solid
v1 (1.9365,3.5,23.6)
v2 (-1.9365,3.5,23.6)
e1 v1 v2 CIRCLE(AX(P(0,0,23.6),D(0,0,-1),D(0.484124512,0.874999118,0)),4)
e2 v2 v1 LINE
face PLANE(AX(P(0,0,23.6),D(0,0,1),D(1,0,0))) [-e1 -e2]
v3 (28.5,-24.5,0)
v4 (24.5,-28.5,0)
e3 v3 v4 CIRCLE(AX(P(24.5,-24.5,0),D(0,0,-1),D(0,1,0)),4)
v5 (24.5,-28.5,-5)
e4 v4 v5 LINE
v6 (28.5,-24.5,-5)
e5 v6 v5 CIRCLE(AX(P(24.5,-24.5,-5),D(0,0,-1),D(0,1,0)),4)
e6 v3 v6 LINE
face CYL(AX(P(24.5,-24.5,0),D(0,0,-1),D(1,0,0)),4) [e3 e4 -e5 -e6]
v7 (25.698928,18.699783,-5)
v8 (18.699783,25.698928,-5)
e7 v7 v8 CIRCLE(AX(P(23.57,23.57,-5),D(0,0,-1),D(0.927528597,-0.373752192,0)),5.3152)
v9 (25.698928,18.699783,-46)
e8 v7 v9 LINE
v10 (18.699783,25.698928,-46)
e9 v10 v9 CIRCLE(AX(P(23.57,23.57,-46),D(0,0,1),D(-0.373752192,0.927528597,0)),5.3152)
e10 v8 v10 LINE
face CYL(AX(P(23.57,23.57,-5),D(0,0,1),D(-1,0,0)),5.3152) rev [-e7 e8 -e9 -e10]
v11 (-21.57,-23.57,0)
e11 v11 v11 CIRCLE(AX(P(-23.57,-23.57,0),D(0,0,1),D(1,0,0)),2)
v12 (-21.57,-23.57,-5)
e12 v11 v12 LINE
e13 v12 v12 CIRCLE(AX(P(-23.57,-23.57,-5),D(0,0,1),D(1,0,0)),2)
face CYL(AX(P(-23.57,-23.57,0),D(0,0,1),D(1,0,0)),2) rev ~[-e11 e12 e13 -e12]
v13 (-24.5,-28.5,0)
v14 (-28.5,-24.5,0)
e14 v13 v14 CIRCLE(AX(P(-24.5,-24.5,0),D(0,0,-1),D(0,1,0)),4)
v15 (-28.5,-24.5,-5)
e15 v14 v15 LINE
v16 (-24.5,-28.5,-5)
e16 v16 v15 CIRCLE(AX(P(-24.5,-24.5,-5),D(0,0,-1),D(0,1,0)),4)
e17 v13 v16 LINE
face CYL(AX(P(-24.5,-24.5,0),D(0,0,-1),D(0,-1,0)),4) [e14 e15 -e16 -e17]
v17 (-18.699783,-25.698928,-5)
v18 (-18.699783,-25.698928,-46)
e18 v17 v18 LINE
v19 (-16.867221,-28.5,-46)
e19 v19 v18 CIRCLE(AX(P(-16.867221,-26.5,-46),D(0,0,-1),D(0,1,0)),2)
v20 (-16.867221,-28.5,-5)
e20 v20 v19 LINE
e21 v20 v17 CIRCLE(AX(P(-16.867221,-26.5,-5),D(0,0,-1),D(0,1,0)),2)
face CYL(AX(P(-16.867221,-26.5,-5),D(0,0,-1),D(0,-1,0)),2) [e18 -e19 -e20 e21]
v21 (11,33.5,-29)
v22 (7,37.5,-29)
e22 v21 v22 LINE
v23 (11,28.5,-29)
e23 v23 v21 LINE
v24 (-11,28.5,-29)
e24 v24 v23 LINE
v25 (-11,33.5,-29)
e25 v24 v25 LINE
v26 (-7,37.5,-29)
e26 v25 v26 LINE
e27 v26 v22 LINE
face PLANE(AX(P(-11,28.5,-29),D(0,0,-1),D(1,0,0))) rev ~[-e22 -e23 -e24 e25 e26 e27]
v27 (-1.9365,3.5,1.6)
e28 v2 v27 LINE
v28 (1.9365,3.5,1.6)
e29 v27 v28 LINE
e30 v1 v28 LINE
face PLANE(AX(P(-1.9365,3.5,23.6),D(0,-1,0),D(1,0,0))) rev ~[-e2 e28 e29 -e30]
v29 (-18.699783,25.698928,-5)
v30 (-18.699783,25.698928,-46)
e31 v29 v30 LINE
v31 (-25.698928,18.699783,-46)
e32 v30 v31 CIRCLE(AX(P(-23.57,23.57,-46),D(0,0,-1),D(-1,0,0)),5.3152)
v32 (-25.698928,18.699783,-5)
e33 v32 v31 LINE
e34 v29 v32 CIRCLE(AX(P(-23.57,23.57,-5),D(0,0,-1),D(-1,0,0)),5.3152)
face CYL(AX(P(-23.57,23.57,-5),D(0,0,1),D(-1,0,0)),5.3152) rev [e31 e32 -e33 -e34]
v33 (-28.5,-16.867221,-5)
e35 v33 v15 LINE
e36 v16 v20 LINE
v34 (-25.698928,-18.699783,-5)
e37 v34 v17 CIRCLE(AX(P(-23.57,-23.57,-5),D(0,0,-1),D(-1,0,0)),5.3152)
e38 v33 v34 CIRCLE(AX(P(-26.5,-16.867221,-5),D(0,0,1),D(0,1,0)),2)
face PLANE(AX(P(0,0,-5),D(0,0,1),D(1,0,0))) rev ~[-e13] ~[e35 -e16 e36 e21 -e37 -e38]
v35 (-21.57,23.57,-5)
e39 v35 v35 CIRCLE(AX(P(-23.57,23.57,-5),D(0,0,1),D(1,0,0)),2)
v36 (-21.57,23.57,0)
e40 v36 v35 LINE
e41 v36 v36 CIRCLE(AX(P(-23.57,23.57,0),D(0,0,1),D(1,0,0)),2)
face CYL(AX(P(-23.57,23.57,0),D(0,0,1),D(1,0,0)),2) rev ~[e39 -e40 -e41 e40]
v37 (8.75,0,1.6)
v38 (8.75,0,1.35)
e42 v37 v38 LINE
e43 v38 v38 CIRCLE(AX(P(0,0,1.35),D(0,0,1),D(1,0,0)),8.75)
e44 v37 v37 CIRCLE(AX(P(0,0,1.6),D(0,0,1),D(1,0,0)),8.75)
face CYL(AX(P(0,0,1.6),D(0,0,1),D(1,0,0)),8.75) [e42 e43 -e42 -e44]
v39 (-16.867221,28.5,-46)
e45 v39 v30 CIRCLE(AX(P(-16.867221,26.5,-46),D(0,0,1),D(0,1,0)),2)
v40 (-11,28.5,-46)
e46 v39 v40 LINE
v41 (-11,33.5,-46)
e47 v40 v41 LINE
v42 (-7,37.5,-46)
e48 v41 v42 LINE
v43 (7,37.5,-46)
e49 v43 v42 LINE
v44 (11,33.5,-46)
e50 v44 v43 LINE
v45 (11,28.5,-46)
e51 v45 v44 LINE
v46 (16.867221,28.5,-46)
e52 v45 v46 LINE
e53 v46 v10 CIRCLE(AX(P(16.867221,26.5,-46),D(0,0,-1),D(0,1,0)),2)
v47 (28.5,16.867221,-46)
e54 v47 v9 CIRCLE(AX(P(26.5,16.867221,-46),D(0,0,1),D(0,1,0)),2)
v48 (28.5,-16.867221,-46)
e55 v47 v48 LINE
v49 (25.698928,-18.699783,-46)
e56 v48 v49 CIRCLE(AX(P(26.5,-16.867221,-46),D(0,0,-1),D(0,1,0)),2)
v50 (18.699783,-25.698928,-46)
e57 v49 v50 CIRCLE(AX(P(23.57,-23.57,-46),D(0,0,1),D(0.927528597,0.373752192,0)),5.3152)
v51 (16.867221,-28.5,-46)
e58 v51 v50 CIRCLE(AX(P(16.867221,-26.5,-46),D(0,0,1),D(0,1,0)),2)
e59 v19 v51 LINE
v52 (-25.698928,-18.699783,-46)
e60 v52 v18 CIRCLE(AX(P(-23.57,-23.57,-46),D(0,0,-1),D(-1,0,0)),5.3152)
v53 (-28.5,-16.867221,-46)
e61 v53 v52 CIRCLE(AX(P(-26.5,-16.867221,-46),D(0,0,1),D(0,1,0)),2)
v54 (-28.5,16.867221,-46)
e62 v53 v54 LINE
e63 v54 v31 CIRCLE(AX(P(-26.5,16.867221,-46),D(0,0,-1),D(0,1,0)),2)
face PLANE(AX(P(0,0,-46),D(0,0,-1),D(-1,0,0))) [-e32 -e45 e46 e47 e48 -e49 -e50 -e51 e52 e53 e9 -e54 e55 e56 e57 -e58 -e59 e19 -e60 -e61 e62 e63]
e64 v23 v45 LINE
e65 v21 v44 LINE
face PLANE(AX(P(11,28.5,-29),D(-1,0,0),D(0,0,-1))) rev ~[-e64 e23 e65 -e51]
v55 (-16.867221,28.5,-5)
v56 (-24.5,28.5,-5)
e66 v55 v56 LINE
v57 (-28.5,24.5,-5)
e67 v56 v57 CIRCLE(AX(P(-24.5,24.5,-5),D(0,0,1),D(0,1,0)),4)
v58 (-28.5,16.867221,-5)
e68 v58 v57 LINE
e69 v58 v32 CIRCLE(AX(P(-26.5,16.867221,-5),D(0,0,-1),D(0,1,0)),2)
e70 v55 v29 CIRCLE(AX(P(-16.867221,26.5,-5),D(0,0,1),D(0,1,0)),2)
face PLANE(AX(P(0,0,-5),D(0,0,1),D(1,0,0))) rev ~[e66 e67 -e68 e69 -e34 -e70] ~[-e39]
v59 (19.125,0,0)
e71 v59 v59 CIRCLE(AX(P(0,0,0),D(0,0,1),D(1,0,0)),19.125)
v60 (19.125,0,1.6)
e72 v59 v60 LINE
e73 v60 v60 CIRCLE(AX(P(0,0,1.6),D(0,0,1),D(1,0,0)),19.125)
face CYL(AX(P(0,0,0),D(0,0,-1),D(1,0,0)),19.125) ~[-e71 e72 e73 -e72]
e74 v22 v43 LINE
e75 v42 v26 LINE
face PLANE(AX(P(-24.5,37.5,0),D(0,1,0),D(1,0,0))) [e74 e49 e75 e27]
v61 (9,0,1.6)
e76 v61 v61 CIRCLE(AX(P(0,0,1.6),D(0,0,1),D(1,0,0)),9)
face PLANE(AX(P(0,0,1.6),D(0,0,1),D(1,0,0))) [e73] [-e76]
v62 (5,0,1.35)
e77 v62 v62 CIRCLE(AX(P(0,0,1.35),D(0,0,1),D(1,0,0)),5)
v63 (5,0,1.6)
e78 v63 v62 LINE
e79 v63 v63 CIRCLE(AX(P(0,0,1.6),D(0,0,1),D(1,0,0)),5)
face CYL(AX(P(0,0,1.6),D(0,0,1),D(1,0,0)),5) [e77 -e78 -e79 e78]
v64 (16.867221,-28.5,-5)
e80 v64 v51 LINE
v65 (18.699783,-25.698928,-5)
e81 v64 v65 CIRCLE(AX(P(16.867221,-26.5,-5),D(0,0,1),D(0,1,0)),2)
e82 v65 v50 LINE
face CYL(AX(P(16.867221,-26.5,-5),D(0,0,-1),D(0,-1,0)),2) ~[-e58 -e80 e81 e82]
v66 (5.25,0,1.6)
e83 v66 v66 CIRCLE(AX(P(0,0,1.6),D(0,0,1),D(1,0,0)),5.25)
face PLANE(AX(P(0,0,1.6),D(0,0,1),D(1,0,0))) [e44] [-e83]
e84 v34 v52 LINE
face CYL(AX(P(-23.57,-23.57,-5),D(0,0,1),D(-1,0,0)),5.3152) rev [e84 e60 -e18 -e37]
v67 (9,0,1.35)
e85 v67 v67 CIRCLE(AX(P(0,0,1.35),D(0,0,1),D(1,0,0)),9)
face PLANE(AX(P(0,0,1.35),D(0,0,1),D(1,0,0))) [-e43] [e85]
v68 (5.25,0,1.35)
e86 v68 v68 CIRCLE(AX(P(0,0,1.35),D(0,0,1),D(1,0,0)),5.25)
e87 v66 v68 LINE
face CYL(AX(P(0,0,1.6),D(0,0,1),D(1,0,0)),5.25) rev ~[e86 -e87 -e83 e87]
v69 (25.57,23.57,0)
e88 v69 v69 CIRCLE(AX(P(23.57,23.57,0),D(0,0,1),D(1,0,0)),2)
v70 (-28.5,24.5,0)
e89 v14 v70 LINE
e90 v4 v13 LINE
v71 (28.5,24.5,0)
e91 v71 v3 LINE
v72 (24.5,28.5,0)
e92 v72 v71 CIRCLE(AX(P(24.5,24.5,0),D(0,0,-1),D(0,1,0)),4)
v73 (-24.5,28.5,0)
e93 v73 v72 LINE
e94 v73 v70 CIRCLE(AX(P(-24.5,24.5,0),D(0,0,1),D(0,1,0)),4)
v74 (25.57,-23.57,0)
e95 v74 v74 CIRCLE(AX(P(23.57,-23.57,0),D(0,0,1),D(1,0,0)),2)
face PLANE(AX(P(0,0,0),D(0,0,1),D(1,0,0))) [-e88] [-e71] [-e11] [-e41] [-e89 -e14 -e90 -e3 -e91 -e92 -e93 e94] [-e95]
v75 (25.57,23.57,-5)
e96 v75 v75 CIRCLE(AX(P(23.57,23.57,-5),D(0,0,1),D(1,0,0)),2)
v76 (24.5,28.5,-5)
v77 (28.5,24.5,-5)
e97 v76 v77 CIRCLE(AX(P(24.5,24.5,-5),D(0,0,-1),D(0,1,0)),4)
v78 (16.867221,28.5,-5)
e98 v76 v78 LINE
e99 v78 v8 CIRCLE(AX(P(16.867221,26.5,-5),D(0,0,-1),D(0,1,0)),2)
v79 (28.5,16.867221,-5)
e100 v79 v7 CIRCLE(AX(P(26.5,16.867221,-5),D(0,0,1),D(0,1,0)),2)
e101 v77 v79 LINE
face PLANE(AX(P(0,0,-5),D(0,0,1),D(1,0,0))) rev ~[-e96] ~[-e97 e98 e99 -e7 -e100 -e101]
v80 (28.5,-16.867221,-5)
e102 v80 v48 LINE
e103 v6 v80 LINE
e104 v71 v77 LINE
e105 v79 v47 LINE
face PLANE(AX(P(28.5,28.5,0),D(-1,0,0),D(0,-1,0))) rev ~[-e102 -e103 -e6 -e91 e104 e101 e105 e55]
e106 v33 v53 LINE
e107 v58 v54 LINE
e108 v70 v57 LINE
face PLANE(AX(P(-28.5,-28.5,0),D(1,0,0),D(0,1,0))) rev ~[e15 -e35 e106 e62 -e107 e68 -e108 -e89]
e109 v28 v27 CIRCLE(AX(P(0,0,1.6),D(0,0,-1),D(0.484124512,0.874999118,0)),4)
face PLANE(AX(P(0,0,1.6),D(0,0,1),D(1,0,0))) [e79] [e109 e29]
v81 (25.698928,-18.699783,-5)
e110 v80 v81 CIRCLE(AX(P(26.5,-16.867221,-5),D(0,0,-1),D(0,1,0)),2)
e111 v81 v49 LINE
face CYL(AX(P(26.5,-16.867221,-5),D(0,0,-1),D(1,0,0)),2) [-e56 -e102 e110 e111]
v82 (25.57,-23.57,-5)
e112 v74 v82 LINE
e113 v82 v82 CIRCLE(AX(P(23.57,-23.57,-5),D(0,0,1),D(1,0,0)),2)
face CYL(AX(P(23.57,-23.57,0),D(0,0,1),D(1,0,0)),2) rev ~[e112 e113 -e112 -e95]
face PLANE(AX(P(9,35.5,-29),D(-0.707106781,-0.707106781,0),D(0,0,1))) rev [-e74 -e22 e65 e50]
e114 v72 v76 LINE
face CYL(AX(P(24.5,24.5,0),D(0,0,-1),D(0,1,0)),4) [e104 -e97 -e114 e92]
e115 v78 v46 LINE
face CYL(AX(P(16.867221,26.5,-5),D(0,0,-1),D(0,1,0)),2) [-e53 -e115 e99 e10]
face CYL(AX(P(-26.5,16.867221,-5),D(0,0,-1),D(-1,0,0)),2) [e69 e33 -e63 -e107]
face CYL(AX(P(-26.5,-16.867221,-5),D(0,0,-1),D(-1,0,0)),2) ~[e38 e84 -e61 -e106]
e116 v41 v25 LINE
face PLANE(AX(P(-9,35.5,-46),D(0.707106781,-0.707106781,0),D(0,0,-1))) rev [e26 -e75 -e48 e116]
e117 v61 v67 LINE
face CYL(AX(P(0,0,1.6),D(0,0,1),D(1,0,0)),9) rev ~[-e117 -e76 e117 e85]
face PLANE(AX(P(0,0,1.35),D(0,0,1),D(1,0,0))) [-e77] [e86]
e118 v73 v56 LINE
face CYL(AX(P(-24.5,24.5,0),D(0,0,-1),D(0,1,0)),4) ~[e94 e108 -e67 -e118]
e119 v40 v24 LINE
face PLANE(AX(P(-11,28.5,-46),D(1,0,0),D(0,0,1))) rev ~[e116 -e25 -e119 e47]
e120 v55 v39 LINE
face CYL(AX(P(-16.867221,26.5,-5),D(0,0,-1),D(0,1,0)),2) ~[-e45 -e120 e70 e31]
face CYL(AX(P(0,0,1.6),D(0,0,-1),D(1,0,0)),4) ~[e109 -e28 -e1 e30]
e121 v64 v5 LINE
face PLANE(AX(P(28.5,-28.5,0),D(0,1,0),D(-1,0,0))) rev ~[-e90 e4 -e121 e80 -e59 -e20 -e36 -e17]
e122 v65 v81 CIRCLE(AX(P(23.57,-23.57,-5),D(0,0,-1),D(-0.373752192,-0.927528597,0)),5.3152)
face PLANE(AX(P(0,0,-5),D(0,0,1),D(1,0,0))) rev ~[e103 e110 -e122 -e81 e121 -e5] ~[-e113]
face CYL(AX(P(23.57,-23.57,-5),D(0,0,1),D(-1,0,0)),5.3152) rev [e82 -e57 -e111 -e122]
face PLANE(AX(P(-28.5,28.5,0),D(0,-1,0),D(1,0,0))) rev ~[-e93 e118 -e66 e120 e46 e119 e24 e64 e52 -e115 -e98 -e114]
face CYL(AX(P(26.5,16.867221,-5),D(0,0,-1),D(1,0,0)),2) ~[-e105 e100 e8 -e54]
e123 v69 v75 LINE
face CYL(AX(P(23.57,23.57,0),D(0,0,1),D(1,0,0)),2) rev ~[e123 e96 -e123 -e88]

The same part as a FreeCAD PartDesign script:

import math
import FreeCAD as App
import Part
import Sketcher

V = App.Vector
Q = App.Units.Quantity


def edges_at(feature, points):
    """Names of the edges that pass closest to the given points."""
    edges = feature.Shape.Edges
    near = lambda p: min(range(len(edges)), key=lambda i: edges[i].distToShape(Part.Vertex(*p))[0])
    return sorted({f"Edge{near(p) + 1}" for p in points})

doc = App.newDocument("Part")
body = doc.addObject("PartDesign::Body", "Body")

# Sketch on XY plane
sketch1 = body.newObject("Sketcher::SketchObject", "Sketch")
sketch1.AttachmentSupport = (doc.getObject("XY_Plane"), [""])
sketch1.MapMode = "FlatFace"
sketch1.addGeometry(Part.LineSegment(V(28.5, 28.5, 0), V(-28.5, 28.5, 0)), False)
sketch1.addGeometry(Part.LineSegment(V(-28.5, 28.5, 0), V(-28.5, -28.5, 0)), False)
sketch1.addGeometry(Part.LineSegment(V(-28.5, -28.5, 0), V(28.5, -28.5, 0)), False)
sketch1.addGeometry(Part.LineSegment(V(28.5, -28.5, 0), V(28.5, 28.5, 0)), False)
sketch1.addGeometry(Part.Circle(V(-23.57, -23.57, 0), V(0, 0, 1), 2), False)
sketch1.addGeometry(Part.Circle(V(23.57, -23.57, 0), V(0, 0, 1), 2), False)
sketch1.addGeometry(Part.Circle(V(-23.57, 23.57, 0), V(0, 0, 1), 2), False)
sketch1.addGeometry(Part.Circle(V(23.57, 23.57, 0), V(0, 0, 1), 2), False)
sketch1.addConstraint(Sketcher.Constraint("Coincident", 0, 2, 1, 1))
sketch1.addConstraint(Sketcher.Constraint("Coincident", 1, 2, 2, 1))
sketch1.addConstraint(Sketcher.Constraint("Coincident", 2, 2, 3, 1))
sketch1.addConstraint(Sketcher.Constraint("Coincident", 3, 2, 0, 1))
sketch1.addConstraint(Sketcher.Constraint("Horizontal", 0))
sketch1.addConstraint(Sketcher.Constraint("Vertical", 1))
sketch1.addConstraint(Sketcher.Constraint("Horizontal", 2))
sketch1.addConstraint(Sketcher.Constraint("Vertical", 3))
sketch1.addConstraint(Sketcher.Constraint("Equal", 4, 5))
sketch1.addConstraint(Sketcher.Constraint("Equal", 5, 6))
sketch1.addConstraint(Sketcher.Constraint("Equal", 6, 7))
sketch1.addConstraint(Sketcher.Constraint("Symmetric", 5, 3, 6, 3, -1, 1))
sketch1.addConstraint(Sketcher.Constraint("Symmetric", 4, 3, 7, 3, -1, 1))
sketch1.addConstraint(Sketcher.Constraint("Symmetric", 0, 2, 2, 2, -1, 1))
sketch1.addConstraint(Sketcher.Constraint("Symmetric", 4, 3, 5, 3, -2))
sketch1.addConstraint(Sketcher.Constraint("Equal", 2, 1))
sketch1.addConstraint(Sketcher.Constraint("Diameter", 4, Q("4 mm")))
sketch1.addConstraint(Sketcher.Constraint("DistanceX", 0, 2, 0, 1, Q("57 mm")))
sketch1.addConstraint(Sketcher.Constraint("DistanceX", 4, 3, 5, 3, Q("47.14 mm")))
sketch1.addConstraint(Sketcher.Constraint("DistanceY", 4, 3, 6, 3, Q("47.14 mm")))
pad1 = body.newObject("PartDesign::Pad", "Pad")
pad1.Profile = sketch1
pad1.Length = 5
pad1.Reversed = True
doc.recompute()

fillet = body.newObject("PartDesign::Fillet", "Fillet")
fillet.Base = (pad1, edges_at(pad1, [
    (28.5, -28.5, -2.5),
    (28.5, 28.5, -2.5),
    (-28.5, 28.5, -2.5),
    (-28.5, -28.5, -2.5),
]))
fillet.Radius = 4

# Sketch on XY plane
sketch2 = body.newObject("Sketcher::SketchObject", "Sketch001")
sketch2.AttachmentSupport = (doc.getObject("XY_Plane"), [""])
sketch2.MapMode = "FlatFace"
sketch2.addGeometry(Part.Circle(V(0, 0, 0), V(0, 0, 1), 19.125), False)
sketch2.addConstraint(Sketcher.Constraint("Coincident", 0, 3, -1, 1))
sketch2.addConstraint(Sketcher.Constraint("Diameter", 0, Q("38.25 mm")))
pad2 = body.newObject("PartDesign::Pad", "Pad001")
pad2.Profile = sketch2
pad2.Length = 1.6

# Sketch on XY plane
sketch3 = body.newObject("Sketcher::SketchObject", "Sketch002")
sketch3.AttachmentSupport = (doc.getObject("XY_Plane"), [""])
sketch3.MapMode = "FlatFace"
sketch3.AttachmentOffset = App.Placement(V(0, 0, 1.6), App.Rotation())
sketch3.addGeometry(Part.Circle(V(0, 0, 0), V(0, 0, 1), 9), False)
sketch3.addGeometry(Part.Circle(V(0, 0, 0), V(0, 0, 1), 8.75), False)
sketch3.addGeometry(Part.Circle(V(0, 0, 0), V(0, 0, 1), 5.25), False)
sketch3.addGeometry(Part.Circle(V(0, 0, 0), V(0, 0, 1), 5), False)
sketch3.addConstraint(Sketcher.Constraint("Coincident", 0, 3, -1, 1))
sketch3.addConstraint(Sketcher.Constraint("Coincident", 1, 3, -1, 1))
sketch3.addConstraint(Sketcher.Constraint("Coincident", 2, 3, -1, 1))
sketch3.addConstraint(Sketcher.Constraint("Coincident", 3, 3, -1, 1))
sketch3.addConstraint(Sketcher.Constraint("Diameter", 0, Q("18 mm")))
sketch3.addConstraint(Sketcher.Constraint("Diameter", 3, Q("10 mm")))
sketch3.addConstraint(Sketcher.Constraint("Diameter", 1, Q("17.5 mm")))
sketch3.addConstraint(Sketcher.Constraint("Diameter", 2, Q("10.5 mm")))
pocket1 = body.newObject("PartDesign::Pocket", "Pocket")
pocket1.Profile = sketch3
pocket1.Length = 0.25

# Sketch on XY plane
sketch4 = body.newObject("Sketcher::SketchObject", "Sketch003")
sketch4.AttachmentSupport = (doc.getObject("XY_Plane"), [""])
sketch4.MapMode = "FlatFace"
sketch4.AttachmentOffset = App.Placement(V(0, 0, 1.6), App.Rotation())
sketch4.addGeometry(Part.Circle(V(0, 0, 0), V(0, 0, 1), 4), False)
sketch4.addConstraint(Sketcher.Constraint("Coincident", 0, 3, -1, 1))
sketch4.addConstraint(Sketcher.Constraint("Diameter", 0, Q("8 mm")))
pad3 = body.newObject("PartDesign::Pad", "Pad002")
pad3.Profile = sketch4
pad3.Length = 22

# Sketch on XY plane
sketch5 = body.newObject("Sketcher::SketchObject", "Sketch004")
sketch5.AttachmentSupport = (doc.getObject("XY_Plane"), [""])
sketch5.MapMode = "FlatFace"
sketch5.AttachmentOffset = App.Placement(V(0, 0, 23.6), App.Rotation())
sketch5.addGeometry(Part.LineSegment(V(-1.9365, 3.5, 0), V(1.9365, 3.5, 0)), False)
sketch5.addGeometry(Part.ArcOfCircle(Part.Circle(V(0, 0, 0), V(0, 0, 1), 4), math.radians(61.044871), math.radians(118.955129)), False)
sketch5.addConstraint(Sketcher.Constraint("Coincident", 0, 1, 1, 2))
sketch5.addConstraint(Sketcher.Constraint("Coincident", 1, 1, 0, 2))
sketch5.addConstraint(Sketcher.Constraint("Horizontal", 0))
sketch5.addConstraint(Sketcher.Constraint("Coincident", 1, 3, -1, 1))
sketch5.addConstraint(Sketcher.Constraint("Radius", 1, Q("4 mm")))
sketch5.addConstraint(Sketcher.Constraint("DistanceY", -1, 1, 0, 1, Q("3.5 mm")))
pocket2 = body.newObject("PartDesign::Pocket", "Pocket001")
pocket2.Profile = sketch5
pocket2.Length = 22

# Sketch on XY plane
sketch6 = body.newObject("Sketcher::SketchObject", "Sketch005")
sketch6.AttachmentSupport = (doc.getObject("XY_Plane"), [""])
sketch6.MapMode = "FlatFace"
sketch6.AttachmentOffset = App.Placement(V(0, 0, -5), App.Rotation())
sketch6.addGeometry(Part.ArcOfCircle(Part.Circle(V(-23.57, -23.57, 0), V(0, 0, 1), 5.3152), math.radians(-68.052788), math.radians(158.052788)), False)
sketch6.addGeometry(Part.LineSegment(V(-28.5, -21.583432, 0), V(-28.5, 21.583432, 0)), False)
sketch6.addGeometry(Part.ArcOfCircle(Part.Circle(V(-23.57, 23.57, 0), V(0, 0, 1), 5.3152), math.radians(-158.052788), math.radians(68.052788)), False)
sketch6.addGeometry(Part.LineSegment(V(-21.583432, 28.5, 0), V(21.583432, 28.5, 0)), False)
sketch6.addGeometry(Part.ArcOfCircle(Part.Circle(V(23.57, 23.57, 0), V(0, 0, 1), 5.3152), math.radians(111.947212), math.radians(338.052788)), False)
sketch6.addGeometry(Part.LineSegment(V(28.5, 21.583432, 0), V(28.5, -21.583432, 0)), False)
sketch6.addGeometry(Part.ArcOfCircle(Part.Circle(V(23.57, -23.57, 0), V(0, 0, 1), 5.3152), math.radians(21.947212), math.radians(248.052788)), False)
sketch6.addGeometry(Part.LineSegment(V(21.583432, -28.5, 0), V(-21.583432, -28.5, 0)), False)
sketch6.addConstraint(Sketcher.Constraint("Coincident", 0, 2, 1, 1))
sketch6.addConstraint(Sketcher.Constraint("Coincident", 1, 2, 2, 1))
sketch6.addConstraint(Sketcher.Constraint("Coincident", 2, 2, 3, 1))
sketch6.addConstraint(Sketcher.Constraint("Coincident", 3, 2, 4, 1))
sketch6.addConstraint(Sketcher.Constraint("Coincident", 4, 2, 5, 1))
sketch6.addConstraint(Sketcher.Constraint("Coincident", 5, 2, 6, 1))
sketch6.addConstraint(Sketcher.Constraint("Coincident", 6, 2, 7, 1))
sketch6.addConstraint(Sketcher.Constraint("Coincident", 7, 2, 0, 1))
sketch6.addConstraint(Sketcher.Constraint("Vertical", 1))
sketch6.addConstraint(Sketcher.Constraint("Horizontal", 3))
sketch6.addConstraint(Sketcher.Constraint("Vertical", 5))
sketch6.addConstraint(Sketcher.Constraint("Horizontal", 7))
sketch6.addConstraint(Sketcher.Constraint("Equal", 0, 2))
sketch6.addConstraint(Sketcher.Constraint("Equal", 2, 4))
sketch6.addConstraint(Sketcher.Constraint("Equal", 4, 6))
sketch6.addConstraint(Sketcher.Constraint("Symmetric", 0, 3, 4, 3, -1, 1))
sketch6.addConstraint(Sketcher.Constraint("Symmetric", 2, 3, 6, 3, -1, 1))
sketch6.addConstraint(Sketcher.Constraint("Symmetric", 2, 3, 4, 3, -2))
sketch6.addConstraint(Sketcher.Constraint("Horizontal", 1, 2, 4, 2))
sketch6.addConstraint(Sketcher.Constraint("Vertical", 3, 2, 6, 2))
sketch6.addConstraint(Sketcher.Constraint("Equal", 7, 1))
sketch6.addConstraint(Sketcher.Constraint("DistanceX", 0, 2, -1, 1, Q("28.5 mm")))
sketch6.addConstraint(Sketcher.Constraint("DistanceY", -1, 1, 2, 2, Q("28.5 mm")))
sketch6.addConstraint(Sketcher.Constraint("Radius", 0, Q("5.3152 mm")))
sketch6.addConstraint(Sketcher.Constraint("DistanceX", 0, 3, -1, 1, Q("23.57 mm")))
pad4 = body.newObject("PartDesign::Pad", "Pad003")
pad4.Profile = sketch6
pad4.Length = 41
pad4.Reversed = True
doc.recompute()

fillet2 = body.newObject("PartDesign::Fillet", "Fillet001")
fillet2.Base = (pad4, edges_at(pad4, [
    (-28.5, 21.583, -25.5),
    (-21.583, 28.5, -25.5),
    (-28.5, -21.583, -25.5),
    (-21.583, -28.5, -25.5),
    (21.583, 28.5, -25.5),
    (28.5, 21.583, -25.5),
    (28.5, -21.583, -25.5),
    (21.583, -28.5, -25.5),
]))
fillet2.Radius = 2

# Sketch on XZ plane
sketch7 = body.newObject("Sketcher::SketchObject", "Sketch006")
sketch7.AttachmentSupport = (doc.getObject("XZ_Plane"), [""])
sketch7.MapMode = "FlatFace"
sketch7.AttachmentOffset = App.Placement(V(0, 0, -28.5), App.Rotation())
sketch7.addGeometry(Part.LineSegment(V(11, -29, 0), V(11, -46, 0)), False)
sketch7.addGeometry(Part.LineSegment(V(11, -46, 0), V(-11, -46, 0)), False)
sketch7.addGeometry(Part.LineSegment(V(-11, -46, 0), V(-11, -29, 0)), False)
sketch7.addGeometry(Part.LineSegment(V(-11, -29, 0), V(11, -29, 0)), False)
sketch7.addConstraint(Sketcher.Constraint("Coincident", 0, 2, 1, 1))
sketch7.addConstraint(Sketcher.Constraint("Coincident", 1, 2, 2, 1))
sketch7.addConstraint(Sketcher.Constraint("Coincident", 2, 2, 3, 1))
sketch7.addConstraint(Sketcher.Constraint("Coincident", 3, 2, 0, 1))
sketch7.addConstraint(Sketcher.Constraint("Vertical", 0))
sketch7.addConstraint(Sketcher.Constraint("Horizontal", 1))
sketch7.addConstraint(Sketcher.Constraint("Vertical", 2))
sketch7.addConstraint(Sketcher.Constraint("Horizontal", 3))
sketch7.addConstraint(Sketcher.Constraint("DistanceX", 1, 2, 1, 1, Q("22 mm")))
sketch7.addConstraint(Sketcher.Constraint("DistanceY", 0, 2, 0, 1, Q("17 mm")))
sketch7.addConstraint(Sketcher.Constraint("DistanceX", -1, 1, 0, 2, Q("11 mm")))
sketch7.addConstraint(Sketcher.Constraint("DistanceY", 0, 2, -1, 1, Q("46 mm")))
pad5 = body.newObject("PartDesign::Pad", "Pad004")
pad5.Profile = sketch7
pad5.Length = 9
pad5.Reversed = True
doc.recompute()

chamfer = body.newObject("PartDesign::Chamfer", "Chamfer")
chamfer.Base = (pad5, edges_at(pad5, [(11, 37.5, -37.5), (-11, 37.5, -37.5)]))
chamfer.Size = 4

doc.recompute()
